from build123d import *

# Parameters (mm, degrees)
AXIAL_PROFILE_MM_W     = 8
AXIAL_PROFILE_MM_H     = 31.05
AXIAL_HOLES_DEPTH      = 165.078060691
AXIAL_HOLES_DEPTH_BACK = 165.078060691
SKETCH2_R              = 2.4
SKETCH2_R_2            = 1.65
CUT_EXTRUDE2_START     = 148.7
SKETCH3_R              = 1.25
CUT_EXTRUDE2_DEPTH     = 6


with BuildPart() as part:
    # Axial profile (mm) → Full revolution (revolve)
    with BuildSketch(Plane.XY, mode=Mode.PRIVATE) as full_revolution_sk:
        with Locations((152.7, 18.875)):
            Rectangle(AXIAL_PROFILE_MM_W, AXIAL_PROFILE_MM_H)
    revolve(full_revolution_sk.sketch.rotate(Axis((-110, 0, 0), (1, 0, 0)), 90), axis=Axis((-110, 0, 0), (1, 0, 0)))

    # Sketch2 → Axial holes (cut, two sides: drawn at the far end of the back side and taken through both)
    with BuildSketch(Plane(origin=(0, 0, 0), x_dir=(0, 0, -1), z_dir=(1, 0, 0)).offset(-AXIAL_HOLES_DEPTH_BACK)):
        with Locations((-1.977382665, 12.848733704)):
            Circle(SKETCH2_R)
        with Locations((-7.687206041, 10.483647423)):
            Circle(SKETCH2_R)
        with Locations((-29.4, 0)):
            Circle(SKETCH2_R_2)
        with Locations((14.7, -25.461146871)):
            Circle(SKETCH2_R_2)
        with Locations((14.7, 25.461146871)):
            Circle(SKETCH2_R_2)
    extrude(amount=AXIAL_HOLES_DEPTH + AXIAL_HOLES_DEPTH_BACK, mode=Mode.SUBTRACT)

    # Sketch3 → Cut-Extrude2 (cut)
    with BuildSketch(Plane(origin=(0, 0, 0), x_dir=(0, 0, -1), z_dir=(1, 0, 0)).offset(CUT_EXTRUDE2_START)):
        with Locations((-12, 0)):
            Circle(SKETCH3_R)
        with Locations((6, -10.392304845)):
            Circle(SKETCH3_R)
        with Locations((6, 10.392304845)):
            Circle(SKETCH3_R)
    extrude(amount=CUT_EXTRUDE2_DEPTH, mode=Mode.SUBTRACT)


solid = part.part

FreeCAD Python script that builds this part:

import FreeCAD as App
import Part
import Sketcher
from FreeCAD import Vector

doc = App.newDocument("Part")
body = doc.addObject("PartDesign::Body", "Body")

# Sketch on XY plane
sketch1 = body.newObject("Sketcher::SketchObject", "Sketch")
sketch1.AttachmentSupport = (doc.getObject("XY_Plane"), [""])
sketch1.MapMode = "FlatFace"
sketch1.addGeometry(Part.LineSegment(Vector(149, 34, 0), Vector(149, 3, 0)), False)
sketch1.addGeometry(Part.LineSegment(Vector(149, 3, 0), Vector(157, 3, 0)), False)
sketch1.addGeometry(Part.LineSegment(Vector(157, 3, 0), Vector(157, 34, 0)), False)
sketch1.addGeometry(Part.LineSegment(Vector(157, 34, 0), Vector(149, 34, 0)), False)
sketch1.addConstraint(Sketcher.Constraint("Coincident", 0, 2, 1, 1))
sketch1.addConstraint(Sketcher.Constraint("Coincident", 1, 2, 2, 1))
sketch1.addConstraint(Sketcher.Constraint("Coincident", 2, 2, 3, 1))
sketch1.addConstraint(Sketcher.Constraint("Coincident", 3, 2, 0, 1))
sketch1.addConstraint(Sketcher.Constraint("Vertical", 0))
sketch1.addConstraint(Sketcher.Constraint("Horizontal", 1))
sketch1.addConstraint(Sketcher.Constraint("Vertical", 2))
sketch1.addConstraint(Sketcher.Constraint("Horizontal", 3))
sketch1.addConstraint(Sketcher.Constraint("DistanceX", 1, 1, 1, 2, 8.0))
sketch1.addConstraint(Sketcher.Constraint("DistanceY", 0, 2, 0, 1, 31.05))
sketch1.addConstraint(Sketcher.Constraint("DistanceX", -1, 1, 0, 2, 148.7))
sketch1.addConstraint(Sketcher.Constraint("DistanceY", -1, 1, 2, 2, 34.4))
revolution = body.newObject("PartDesign::Revolution", "Revolution")
revolution.Profile = sketch1
revolution.ReferenceAxis = (sketch1, ["H_Axis"])
revolution.Angle = 360

# Sketch on YZ plane
sketch2 = body.newObject("Sketcher::SketchObject", "Sketch001")
sketch2.AttachmentSupport = (doc.getObject("YZ_Plane"), [""])
sketch2.MapMode = "FlatFace"
sketch2.addGeometry(Part.Circle(Vector(12.8, 2, 0), Vector(0, 0, 1), 2.4), False)
sketch2.addGeometry(Part.Circle(Vector(10.5, 7.7, 0), Vector(0, 0, 1), 2.4), False)
sketch2.addGeometry(Part.Circle(Vector(0, 29.4, 0), Vector(0, 0, 1), 1.6), False)
sketch2.addGeometry(Part.Circle(Vector(-25.5, -14.7, 0), Vector(0, 0, 1), 1.6), False)
sketch2.addGeometry(Part.Circle(Vector(25.5, -14.7, 0), Vector(0, 0, 1), 1.6), False)
sketch2.addConstraint(Sketcher.Constraint("Equal", 0, 1))
sketch2.addConstraint(Sketcher.Constraint("Equal", 2, 3))
sketch2.addConstraint(Sketcher.Constraint("Equal", 3, 4))
sketch2.addConstraint(Sketcher.Constraint("Symmetric", 3, 3, 4, 3, -2))
sketch2.addConstraint(Sketcher.Constraint("PointOnObject", 2, 3, -2))
sketch2.addConstraint(Sketcher.Constraint("Diameter", 0, 4.8))
sketch2.addConstraint(Sketcher.Constraint("Diameter", 2, 3.3))
sketch2.addConstraint(Sketcher.Constraint("DistanceY", -1, 1, 2, 3, 29.4))
sketch2.addConstraint(Sketcher.Constraint("DistanceY", 3, 3, -1, 1, 14.7))
sketch2.addConstraint(Sketcher.Constraint("DistanceX", 1, 3, 4, 3, 14.977499))
sketch2.addConstraint(Sketcher.Constraint("DistanceX", 3, 3, 0, 3, 38.309881))
sketch2.addConstraint(Sketcher.Constraint("DistanceX", -1, 1, 0, 3, 12.848734))
sketch2.addConstraint(Sketcher.Constraint("DistanceY", -1, 1, 0, 3, 1.977383))
sketch2.addConstraint(Sketcher.Constraint("DistanceY", -1, 1, 1, 3, 7.687206))
pocket1 = body.newObject("PartDesign::Pocket", "Pocket")
pocket1.Profile = sketch2
pocket1.Type = "ThroughAll"
pocket1.Midplane = True

# Sketch on YZ plane
sketch3 = body.newObject("Sketcher::SketchObject", "Sketch002")
sketch3.AttachmentSupport = (doc.getObject("YZ_Plane"), [""])
sketch3.MapMode = "FlatFace"
sketch3.AttachmentOffset = App.Placement(Vector(0, 0, 148.7), App.Rotation())
sketch3.addGeometry(Part.Circle(Vector(0, 12, 0), Vector(0, 0, 1), 1.2), False)
sketch3.addGeometry(Part.Circle(Vector(-10.4, -6, 0), Vector(0, 0, 1), 1.2), False)
sketch3.addGeometry(Part.Circle(Vector(10.4, -6, 0), Vector(0, 0, 1), 1.2), False)
sketch3.addConstraint(Sketcher.Constraint("Equal", 0, 1))
sketch3.addConstraint(Sketcher.Constraint("Equal", 1, 2))
sketch3.addConstraint(Sketcher.Constraint("Symmetric", 1, 3, 2, 3, -2))
sketch3.addConstraint(Sketcher.Constraint("PointOnObject", 0, 3, -2))
sketch3.addConstraint(Sketcher.Constraint("Diameter", 0, 2.5))
sketch3.addConstraint(Sketcher.Constraint("DistanceY", -1, 1, 0, 3, 12.0))
sketch3.addConstraint(Sketcher.Constraint("DistanceY", 1, 3, -1, 1, 6.0))
sketch3.addConstraint(Sketcher.Constraint("DistanceX", 1, 3, 2, 3, 20.78461))
pocket2 = body.newObject("PartDesign::Pocket", "Pocket001")
pocket2.Profile = sketch3
pocket2.Length = 6
pocket2.Reversed = True

doc.recompute()
